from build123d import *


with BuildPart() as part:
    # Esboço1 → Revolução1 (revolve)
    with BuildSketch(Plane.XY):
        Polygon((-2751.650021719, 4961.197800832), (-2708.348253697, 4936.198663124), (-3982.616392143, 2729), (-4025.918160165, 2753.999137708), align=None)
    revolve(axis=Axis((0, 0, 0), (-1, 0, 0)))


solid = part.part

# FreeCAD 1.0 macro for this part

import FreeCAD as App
import Part
import Sketcher

V = App.Vector

doc = App.newDocument("Part")
params = doc.addObject("Spreadsheet::Sheet", "Params")
for row, (alias, value) in enumerate([
    ("sketch1_length", "50 mm"),
    ("revolution_angle", "360 deg"),
], start=1):
    params.set(f"A{row}", alias)
    params.set(f"B{row}", "=" + value)
    params.setAlias(f"B{row}", alias)

body = doc.addObject("PartDesign::Body", "Body")

sketch1 = doc.addObject("Sketcher::SketchObject", "Sketch")
body.addObject(sketch1)
sketch1.AttachmentSupport = (doc.XY_Plane, [""])
sketch1.MapMode = "FlatFace"
sketch1.addGeometry([
    Part.LineSegment(V(-2708, 4936, 0), V(-2752, 4961, 0)),
    Part.LineSegment(V(-2752, 4961, 0), V(-4026, 2754, 0)),
    Part.LineSegment(V(-4026, 2754, 0), V(-3983, 2729, 0)),
    Part.LineSegment(V(-3983, 2729, 0), V(-2708, 4936, 0)),
], False)
sketch1.addConstraint([
    Sketcher.Constraint("Coincident", 0, 2, 1, 1),
    Sketcher.Constraint("Coincident", 1, 2, 2, 1),
    Sketcher.Constraint("Coincident", 2, 2, 3, 1),
    Sketcher.Constraint("Coincident", 3, 2, 0, 1),
    Sketcher.Constraint("Perpendicular", 0, 1),
    Sketcher.Constraint("Perpendicular", 1, 2),
    Sketcher.Constraint("Perpendicular", 2, 3),
    Sketcher.Constraint("Distance", 0, 50.0),
    Sketcher.Constraint("DistanceY", -1, 1, 2, 2, 2729.0),
    Sketcher.Constraint("DistanceY", -1, 1, 0, 2, 4961.197801),
    Sketcher.Constraint("DistanceX", 0, 2, -1, 1, 2751.650022),
    Sketcher.Constraint("DistanceX", 1, 2, -1, 1, 4025.91816),
])
sketch1.setExpression("Constraints[7]", "Params.sketch1_length")
revolution = doc.addObject("PartDesign::Revolution", "Revolution")
body.addObject(revolution)
revolution.Profile = sketch1
revolution.ReferenceAxis = (sketch1, ["H_Axis"])
revolution.setExpression("Angle", "Params.revolution_angle")

doc.recompute()
